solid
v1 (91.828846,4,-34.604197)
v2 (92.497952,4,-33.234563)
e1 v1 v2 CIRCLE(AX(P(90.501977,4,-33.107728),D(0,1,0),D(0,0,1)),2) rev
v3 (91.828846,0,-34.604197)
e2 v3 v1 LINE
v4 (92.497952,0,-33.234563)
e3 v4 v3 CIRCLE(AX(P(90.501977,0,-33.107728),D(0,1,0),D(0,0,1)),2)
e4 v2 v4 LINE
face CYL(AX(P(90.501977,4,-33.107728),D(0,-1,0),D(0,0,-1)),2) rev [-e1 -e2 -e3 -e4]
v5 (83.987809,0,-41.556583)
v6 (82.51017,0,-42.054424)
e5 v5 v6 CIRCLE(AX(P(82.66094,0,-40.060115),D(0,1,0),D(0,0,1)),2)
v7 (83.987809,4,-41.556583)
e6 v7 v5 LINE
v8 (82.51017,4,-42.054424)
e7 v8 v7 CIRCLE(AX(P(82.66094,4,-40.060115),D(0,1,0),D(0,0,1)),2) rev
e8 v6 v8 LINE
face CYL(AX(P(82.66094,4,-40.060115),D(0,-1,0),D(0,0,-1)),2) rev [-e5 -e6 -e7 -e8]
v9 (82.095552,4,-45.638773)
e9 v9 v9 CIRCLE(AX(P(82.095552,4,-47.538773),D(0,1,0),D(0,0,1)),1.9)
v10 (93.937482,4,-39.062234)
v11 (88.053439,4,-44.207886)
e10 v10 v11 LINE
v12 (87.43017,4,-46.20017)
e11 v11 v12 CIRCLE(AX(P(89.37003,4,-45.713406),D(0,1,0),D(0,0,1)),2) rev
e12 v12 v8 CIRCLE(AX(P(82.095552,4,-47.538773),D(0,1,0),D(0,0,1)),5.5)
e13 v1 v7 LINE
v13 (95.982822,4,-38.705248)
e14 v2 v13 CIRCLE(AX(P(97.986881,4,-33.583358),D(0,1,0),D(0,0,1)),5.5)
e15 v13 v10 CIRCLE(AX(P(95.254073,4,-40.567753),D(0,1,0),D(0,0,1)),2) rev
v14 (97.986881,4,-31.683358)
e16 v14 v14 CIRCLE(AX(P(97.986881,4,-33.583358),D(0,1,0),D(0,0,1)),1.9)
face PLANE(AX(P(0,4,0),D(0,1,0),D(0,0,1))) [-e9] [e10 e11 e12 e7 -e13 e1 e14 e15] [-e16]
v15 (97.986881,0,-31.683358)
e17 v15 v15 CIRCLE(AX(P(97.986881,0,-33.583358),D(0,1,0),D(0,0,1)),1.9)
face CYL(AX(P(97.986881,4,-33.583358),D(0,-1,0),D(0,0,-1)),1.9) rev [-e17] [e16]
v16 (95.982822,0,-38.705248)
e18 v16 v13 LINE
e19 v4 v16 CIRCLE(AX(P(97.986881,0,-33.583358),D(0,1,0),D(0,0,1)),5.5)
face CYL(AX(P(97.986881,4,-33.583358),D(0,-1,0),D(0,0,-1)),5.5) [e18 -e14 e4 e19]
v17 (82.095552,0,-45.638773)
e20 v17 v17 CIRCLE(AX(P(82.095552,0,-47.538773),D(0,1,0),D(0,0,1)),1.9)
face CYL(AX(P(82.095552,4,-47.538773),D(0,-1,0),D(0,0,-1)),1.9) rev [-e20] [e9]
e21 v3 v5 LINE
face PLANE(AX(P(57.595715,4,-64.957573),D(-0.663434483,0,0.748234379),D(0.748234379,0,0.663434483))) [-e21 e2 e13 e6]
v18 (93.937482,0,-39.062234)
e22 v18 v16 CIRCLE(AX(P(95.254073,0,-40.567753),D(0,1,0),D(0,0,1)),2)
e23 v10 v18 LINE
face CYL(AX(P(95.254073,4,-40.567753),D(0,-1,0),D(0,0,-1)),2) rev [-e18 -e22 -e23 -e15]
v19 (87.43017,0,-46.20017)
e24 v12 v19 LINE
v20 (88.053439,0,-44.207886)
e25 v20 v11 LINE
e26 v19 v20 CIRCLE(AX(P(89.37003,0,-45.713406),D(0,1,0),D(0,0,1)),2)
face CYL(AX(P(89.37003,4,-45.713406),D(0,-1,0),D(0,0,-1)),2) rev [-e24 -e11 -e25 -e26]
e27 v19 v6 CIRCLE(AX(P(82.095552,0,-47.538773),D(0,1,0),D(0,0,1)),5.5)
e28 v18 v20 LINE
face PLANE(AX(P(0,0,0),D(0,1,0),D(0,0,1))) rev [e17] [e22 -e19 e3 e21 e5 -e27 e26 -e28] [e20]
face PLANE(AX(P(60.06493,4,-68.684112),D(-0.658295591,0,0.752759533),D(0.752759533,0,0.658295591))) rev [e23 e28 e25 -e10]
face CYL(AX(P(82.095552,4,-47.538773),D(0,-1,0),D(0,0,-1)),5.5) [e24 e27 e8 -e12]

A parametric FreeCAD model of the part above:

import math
import FreeCAD as App
import Part
import Sketcher

V = App.Vector
Q = App.Units.Quantity


def edges_at(feature, points):
    """Names of the edges that pass closest to the given points."""
    edges = feature.Shape.Edges
    near = lambda p: min(range(len(edges)), key=lambda i: edges[i].distToShape(Part.Vertex(*p))[0])
    return sorted({f"Edge{near(p) + 1}" for p in points})

doc = App.newDocument("Part")
body = doc.addObject("PartDesign::Body", "Body")

# Sketch on XZ plane
sketch1 = body.newObject("Sketcher::SketchObject", "Sketch")
sketch1.AttachmentSupport = (doc.getObject("XZ_Plane"), [""])
sketch1.MapMode = "FlatFace"
sketch1.addGeometry(Part.LineSegment(V(94.955116, -38.172302, 0), V(87.027715, -45.104893, 0)), False)
sketch1.addGeometry(Part.ArcOfCircle(Part.Circle(V(82.095552, -47.538773, 0), V(0, 0, 1), 5.5), math.radians(77.406336), math.radians(386.265017)), False)
sketch1.addGeometry(Part.LineSegment(V(83.294747, -42.171098, 0), V(92.503166, -34.006299, 0)), False)
sketch1.addGeometry(Part.ArcOfCircle(Part.Circle(V(97.986881, -33.583358, 0), V(0, 0, 1), 5.5), math.radians(-123.451428), math.radians(184.410306)), False)
sketch1.addGeometry(Part.Circle(V(97.986881, -33.583358, 0), V(0, 0, 1), 1.9), False)
sketch1.addGeometry(Part.Circle(V(82.095552, -47.538773, 0), V(0, 0, 1), 1.9), False)
sketch1.addConstraint(Sketcher.Constraint("Coincident", 0, 2, 1, 2))
sketch1.addConstraint(Sketcher.Constraint("Coincident", 1, 1, 2, 1))
sketch1.addConstraint(Sketcher.Constraint("Coincident", 2, 2, 3, 2))
sketch1.addConstraint(Sketcher.Constraint("Coincident", 3, 1, 0, 1))
sketch1.addConstraint(Sketcher.Constraint("Coincident", 4, 3, 3, 3))
sketch1.addConstraint(Sketcher.Constraint("Coincident", 5, 3, 1, 3))
sketch1.addConstraint(Sketcher.Constraint("Equal", 1, 3))
sketch1.addConstraint(Sketcher.Constraint("Equal", 4, 5))
sketch1.addConstraint(Sketcher.Constraint("Diameter", 4, 3.8))
sketch1.addConstraint(Sketcher.Constraint("Radius", 1, 5.5))
sketch1.addConstraint(Sketcher.Constraint("Angle", 0, Q("-138.829986 deg")))
sketch1.addConstraint(Sketcher.Constraint("DistanceY", 1, 1, -1, 1, 42.171098))
sketch1.addConstraint(Sketcher.Constraint("DistanceY", 2, 2, -1, 1, 34.006299))
sketch1.addConstraint(Sketcher.Constraint("DistanceX", 0, 2, 3, 1, 7.927402))
sketch1.addConstraint(Sketcher.Constraint("DistanceX", -1, 1, 3, 3, 97.986881))
sketch1.addConstraint(Sketcher.Constraint("DistanceY", 3, 3, -1, 1, 33.583358))
sketch1.addConstraint(Sketcher.Constraint("DistanceX", 1, 3, 3, 3, 15.891328))
sketch1.addConstraint(Sketcher.Constraint("DistanceY", 1, 3, 0, 2, 2.433881))
pad1 = body.newObject("PartDesign::Pad", "Pad")
pad1.Profile = sketch1
pad1.Length = 4
pad1.Reversed = True
doc.recompute()

fillet = body.newObject("PartDesign::Fillet", "Fillet")
fillet.Base = (pad1, edges_at(pad1, [
    (83.295, 2, -42.171),
    (87.028, 2, -45.105),
    (94.955, 2, -38.172),
    (92.503, 2, -34.006),
]))
fillet.Radius = 2

doc.recompute()
